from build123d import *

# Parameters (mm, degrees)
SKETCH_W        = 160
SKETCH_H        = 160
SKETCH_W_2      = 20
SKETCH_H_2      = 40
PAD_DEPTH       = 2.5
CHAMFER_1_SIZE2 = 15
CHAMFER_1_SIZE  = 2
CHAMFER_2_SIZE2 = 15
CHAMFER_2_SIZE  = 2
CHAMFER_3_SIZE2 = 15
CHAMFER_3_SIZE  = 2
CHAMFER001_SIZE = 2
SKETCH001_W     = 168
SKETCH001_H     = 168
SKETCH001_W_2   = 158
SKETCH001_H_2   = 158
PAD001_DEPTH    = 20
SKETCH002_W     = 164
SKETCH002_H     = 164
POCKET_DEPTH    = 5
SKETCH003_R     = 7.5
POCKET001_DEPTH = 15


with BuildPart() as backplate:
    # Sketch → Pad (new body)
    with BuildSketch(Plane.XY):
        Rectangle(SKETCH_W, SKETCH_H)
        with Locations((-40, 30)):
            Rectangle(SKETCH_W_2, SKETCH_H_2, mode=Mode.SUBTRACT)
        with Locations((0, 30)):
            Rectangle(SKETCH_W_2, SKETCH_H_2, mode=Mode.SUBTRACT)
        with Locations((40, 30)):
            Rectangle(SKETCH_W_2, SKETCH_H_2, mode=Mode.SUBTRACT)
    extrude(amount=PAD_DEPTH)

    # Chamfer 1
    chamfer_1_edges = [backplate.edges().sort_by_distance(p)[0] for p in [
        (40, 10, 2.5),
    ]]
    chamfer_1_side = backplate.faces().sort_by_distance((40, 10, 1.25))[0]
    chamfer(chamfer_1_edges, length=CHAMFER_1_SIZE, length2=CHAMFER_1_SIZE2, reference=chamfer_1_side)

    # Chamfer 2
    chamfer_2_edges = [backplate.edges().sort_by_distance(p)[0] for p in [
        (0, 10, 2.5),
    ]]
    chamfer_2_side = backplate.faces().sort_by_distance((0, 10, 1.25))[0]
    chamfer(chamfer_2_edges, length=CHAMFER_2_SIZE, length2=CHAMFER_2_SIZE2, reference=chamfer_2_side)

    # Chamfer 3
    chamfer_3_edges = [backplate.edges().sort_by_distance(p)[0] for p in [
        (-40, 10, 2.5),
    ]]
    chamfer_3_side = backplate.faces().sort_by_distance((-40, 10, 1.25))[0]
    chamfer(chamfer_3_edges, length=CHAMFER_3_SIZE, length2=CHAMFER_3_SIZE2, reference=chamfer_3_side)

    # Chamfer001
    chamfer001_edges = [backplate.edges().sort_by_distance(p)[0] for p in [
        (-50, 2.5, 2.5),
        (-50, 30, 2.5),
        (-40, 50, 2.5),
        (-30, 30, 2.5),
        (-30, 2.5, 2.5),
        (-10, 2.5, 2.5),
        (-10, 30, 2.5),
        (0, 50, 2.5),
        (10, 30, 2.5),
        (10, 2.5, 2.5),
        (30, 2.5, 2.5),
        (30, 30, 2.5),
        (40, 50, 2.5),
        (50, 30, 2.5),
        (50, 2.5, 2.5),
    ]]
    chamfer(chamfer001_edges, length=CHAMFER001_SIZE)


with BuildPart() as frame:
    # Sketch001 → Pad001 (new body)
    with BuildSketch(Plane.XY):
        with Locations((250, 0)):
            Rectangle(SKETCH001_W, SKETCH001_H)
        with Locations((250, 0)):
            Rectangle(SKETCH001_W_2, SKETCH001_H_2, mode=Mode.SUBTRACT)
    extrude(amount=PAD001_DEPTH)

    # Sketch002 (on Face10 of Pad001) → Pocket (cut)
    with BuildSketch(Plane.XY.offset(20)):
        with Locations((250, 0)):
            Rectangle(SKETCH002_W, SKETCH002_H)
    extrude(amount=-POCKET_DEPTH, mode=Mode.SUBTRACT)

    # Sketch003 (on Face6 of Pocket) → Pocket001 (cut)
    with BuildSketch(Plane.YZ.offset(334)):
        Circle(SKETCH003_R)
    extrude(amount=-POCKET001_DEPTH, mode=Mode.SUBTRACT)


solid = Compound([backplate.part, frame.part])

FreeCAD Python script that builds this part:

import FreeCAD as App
import Part
import Sketcher


def edges_at(feature, points):
    """Names of the edges that pass closest to the given points."""
    edges = feature.Shape.Edges
    near = lambda p: min(range(len(edges)), key=lambda i: edges[i].distToShape(Part.Vertex(*p))[0])
    return sorted({f"Edge{near(p) + 1}" for p in points})


def add_polygon(sketch, points):
    """Adds a closed chain of lines whose ends are joined by coincident constraints."""
    first, n = sketch.GeometryCount, len(points)
    for a, b in zip(points, points[1:] + points[:1]):
        sketch.addGeometry(Part.LineSegment(App.Vector(*a, 0), App.Vector(*b, 0)), False)
    for i in range(n):
        sketch.addConstraint(Sketcher.Constraint("Coincident", first + i, 2, first + (i + 1) % n, 1))

doc = App.newDocument("Part")
body = doc.addObject("PartDesign::Body", "Body")

sketch1 = doc.addObject("Sketcher::SketchObject", "Sketch")
body.addObject(sketch1)
sketch1.AttachmentSupport = (doc.XY_Plane, [""])
sketch1.MapMode = "FlatFace"
add_polygon(sketch1, [(-80, 80), (-80, -80), (80, -80), (80, 80)])
add_polygon(sketch1, [(-30, 10), (-50, 10), (-50, 50), (-30, 50)])
add_polygon(sketch1, [(10, 10), (-10, 10), (-10, 50), (10, 50)])
add_polygon(sketch1, [(50, 10), (30, 10), (30, 50), (50, 50)])
sketch1.addConstraint([
    Sketcher.Constraint("Vertical", 0),
    Sketcher.Constraint("Horizontal", 1),
    Sketcher.Constraint("Vertical", 2),
    Sketcher.Constraint("Horizontal", 3),
    Sketcher.Constraint("Horizontal", 4),
    Sketcher.Constraint("Vertical", 5),
    Sketcher.Constraint("Horizontal", 6),
    Sketcher.Constraint("Vertical", 7),
    Sketcher.Constraint("Horizontal", 8),
    Sketcher.Constraint("Vertical", 9),
    Sketcher.Constraint("Horizontal", 10),
    Sketcher.Constraint("Vertical", 11),
    Sketcher.Constraint("Horizontal", 12),
    Sketcher.Constraint("Vertical", 13),
    Sketcher.Constraint("Horizontal", 14),
    Sketcher.Constraint("Vertical", 15),
    Sketcher.Constraint("Symmetric", 0, 2, 2, 2, -1, 1),
    Sketcher.Constraint("Symmetric", 7, 2, 12, 2, -2),
    Sketcher.Constraint("Symmetric", 5, 2, 14, 2, -2),
    Sketcher.Constraint("Horizontal", 7, 2, 8, 2),
    Sketcher.Constraint("Horizontal", 6, 2, 9, 2),
    Sketcher.Constraint("Equal", 6, 8),
    Sketcher.Constraint("Equal", 3, 0),
    Sketcher.Constraint("DistanceX", 1, 1, 1, 2, 160.0),
    Sketcher.Constraint("DistanceX", 4, 2, 4, 1, 20.0),
    Sketcher.Constraint("DistanceY", 5, 1, 5, 2, 40.0),
    Sketcher.Constraint("DistanceX", 4, 2, -1, 1, 50.0),
    Sketcher.Constraint("DistanceY", -1, 1, 4, 2, 10.0),
    Sketcher.Constraint("DistanceX", 8, 2, -1, 1, 10.0),
])
pad1 = doc.addObject("PartDesign::Pad", "Pad")
body.addObject(pad1)
pad1.Profile = sketch1
pad1.Length = 2.5
doc.recompute()

chamfer = doc.addObject("PartDesign::Chamfer", "Chamfer")
body.addObject(chamfer)
chamfer.Base = (pad1, edges_at(pad1, [(40, 10, 2.5)]))
chamfer.ChamferType = "Two distances"
chamfer.Size = 2
chamfer.Size2 = 15
doc.recompute()

chamfer2 = doc.addObject("PartDesign::Chamfer", "Chamfer001")
body.addObject(chamfer2)
chamfer2.Base = (chamfer, edges_at(chamfer, [(0, 10, 2.5)]))
chamfer2.ChamferType = "Two distances"
chamfer2.Size = 2
chamfer2.Size2 = 15
chamfer2.FlipDirection = True
doc.recompute()

chamfer3 = doc.addObject("PartDesign::Chamfer", "Chamfer002")
body.addObject(chamfer3)
chamfer3.Base = (chamfer2, edges_at(chamfer2, [(-40, 10, 2.5)]))
chamfer3.ChamferType = "Two distances"
chamfer3.Size = 2
chamfer3.Size2 = 15
chamfer3.FlipDirection = True
doc.recompute()

chamfer4 = doc.addObject("PartDesign::Chamfer", "Chamfer003")
body.addObject(chamfer4)
chamfer4.Base = (chamfer3, edges_at(chamfer3, [
    (-50, 22.5, 2.5),
    (-50, 22.5, 2.5),
    (-40, 50, 2.5),
    (-30, 22.5, 2.5),
    (-30, 22.5, 2.5),
    (-10, 22.5, 2.5),
    (-10, 22.5, 2.5),
    (0, 50, 2.5),
    (10, 22.5, 2.5),
    (10, 22.5, 2.5),
    (30, 22.5, 2.5),
    (30, 22.5, 2.5),
    (40, 50, 2.5),
    (50, 22.5, 2.5),
    (50, 22.5, 2.5),
]))
chamfer4.Size = 2
body2 = doc.addObject("PartDesign::Body", "Body001")

sketch2 = doc.addObject("Sketcher::SketchObject", "Sketch001")
body2.addObject(sketch2)
sketch2.AttachmentSupport = (doc.getObject("XY_Plane001"), [""])
sketch2.MapMode = "FlatFace"
add_polygon(sketch2, [(166, 84), (166, -84), (334, -84), (334, 84)])
add_polygon(sketch2, [(329, -79), (171, -79), (171, 79), (329, 79)])
sketch2.addConstraint([
    Sketcher.Constraint("Vertical", 0),
    Sketcher.Constraint("Horizontal", 1),
    Sketcher.Constraint("Vertical", 2),
    Sketcher.Constraint("Horizontal", 3),
    Sketcher.Constraint("Horizontal", 4),
    Sketcher.Constraint("Vertical", 5),
    Sketcher.Constraint("Horizontal", 6),
    Sketcher.Constraint("Vertical", 7),
    Sketcher.Constraint("Equal", 3, 0),
    Sketcher.Constraint("Equal", 6, 5),
    Sketcher.Constraint("DistanceX", 1, 1, 1, 2, 168.0),
    Sketcher.Constraint("DistanceX", 4, 2, 4, 1, 158.0),
    Sketcher.Constraint("DistanceX", -1, 1, 0, 2, 166.0),
    Sketcher.Constraint("DistanceY", 0, 2, -1, 1, 84.0),
    Sketcher.Constraint("DistanceX", -1, 1, 4, 2, 171.0),
    Sketcher.Constraint("DistanceY", 4, 2, -1, 1, 79.0),
])
pad2 = doc.addObject("PartDesign::Pad", "Pad001")
body2.addObject(pad2)
pad2.Profile = sketch2
pad2.Length = 20

sketch3 = doc.addObject("Sketcher::SketchObject", "Sketch002")
body2.addObject(sketch3)
sketch3.AttachmentSupport = (doc.getObject("XY_Plane001"), [""])
sketch3.MapMode = "FlatFace"
sketch3.AttachmentOffset = App.Placement(App.Vector(0, 0, 20), App.Rotation())
add_polygon(sketch3, [(168, 82), (168, -82), (332, -82), (332, 82)])
sketch3.addConstraint([
    Sketcher.Constraint("Vertical", 0),
    Sketcher.Constraint("Horizontal", 1),
    Sketcher.Constraint("Vertical", 2),
    Sketcher.Constraint("Horizontal", 3),
    Sketcher.Constraint("Equal", 3, 0),
    Sketcher.Constraint("DistanceX", 1, 1, 1, 2, 164.0),
    Sketcher.Constraint("DistanceX", -1, 1, 0, 2, 168.0),
    Sketcher.Constraint("DistanceY", 0, 2, -1, 1, 82.0),
])
pocket1 = doc.addObject("PartDesign::Pocket", "Pocket")
body2.addObject(pocket1)
pocket1.Profile = sketch3
pocket1.Length = 5

sketch4 = doc.addObject("Sketcher::SketchObject", "Sketch003")
body2.addObject(sketch4)
sketch4.AttachmentSupport = (doc.getObject("YZ_Plane001"), [""])
sketch4.MapMode = "FlatFace"
sketch4.AttachmentOffset = App.Placement(App.Vector(0, 0, 334), App.Rotation())
sketch4.addGeometry(Part.Circle(App.Vector(0, 0, 0), App.Vector(0, 0, 1), 8), False)
sketch4.addConstraint([
    Sketcher.Constraint("Coincident", 0, 3, -1, 1),
    Sketcher.Constraint("Diameter", 0, 15.0),
])
pocket2 = doc.addObject("PartDesign::Pocket", "Pocket001")
body2.addObject(pocket2)
pocket2.Profile = sketch4
pocket2.Length = 15

doc.recompute()
